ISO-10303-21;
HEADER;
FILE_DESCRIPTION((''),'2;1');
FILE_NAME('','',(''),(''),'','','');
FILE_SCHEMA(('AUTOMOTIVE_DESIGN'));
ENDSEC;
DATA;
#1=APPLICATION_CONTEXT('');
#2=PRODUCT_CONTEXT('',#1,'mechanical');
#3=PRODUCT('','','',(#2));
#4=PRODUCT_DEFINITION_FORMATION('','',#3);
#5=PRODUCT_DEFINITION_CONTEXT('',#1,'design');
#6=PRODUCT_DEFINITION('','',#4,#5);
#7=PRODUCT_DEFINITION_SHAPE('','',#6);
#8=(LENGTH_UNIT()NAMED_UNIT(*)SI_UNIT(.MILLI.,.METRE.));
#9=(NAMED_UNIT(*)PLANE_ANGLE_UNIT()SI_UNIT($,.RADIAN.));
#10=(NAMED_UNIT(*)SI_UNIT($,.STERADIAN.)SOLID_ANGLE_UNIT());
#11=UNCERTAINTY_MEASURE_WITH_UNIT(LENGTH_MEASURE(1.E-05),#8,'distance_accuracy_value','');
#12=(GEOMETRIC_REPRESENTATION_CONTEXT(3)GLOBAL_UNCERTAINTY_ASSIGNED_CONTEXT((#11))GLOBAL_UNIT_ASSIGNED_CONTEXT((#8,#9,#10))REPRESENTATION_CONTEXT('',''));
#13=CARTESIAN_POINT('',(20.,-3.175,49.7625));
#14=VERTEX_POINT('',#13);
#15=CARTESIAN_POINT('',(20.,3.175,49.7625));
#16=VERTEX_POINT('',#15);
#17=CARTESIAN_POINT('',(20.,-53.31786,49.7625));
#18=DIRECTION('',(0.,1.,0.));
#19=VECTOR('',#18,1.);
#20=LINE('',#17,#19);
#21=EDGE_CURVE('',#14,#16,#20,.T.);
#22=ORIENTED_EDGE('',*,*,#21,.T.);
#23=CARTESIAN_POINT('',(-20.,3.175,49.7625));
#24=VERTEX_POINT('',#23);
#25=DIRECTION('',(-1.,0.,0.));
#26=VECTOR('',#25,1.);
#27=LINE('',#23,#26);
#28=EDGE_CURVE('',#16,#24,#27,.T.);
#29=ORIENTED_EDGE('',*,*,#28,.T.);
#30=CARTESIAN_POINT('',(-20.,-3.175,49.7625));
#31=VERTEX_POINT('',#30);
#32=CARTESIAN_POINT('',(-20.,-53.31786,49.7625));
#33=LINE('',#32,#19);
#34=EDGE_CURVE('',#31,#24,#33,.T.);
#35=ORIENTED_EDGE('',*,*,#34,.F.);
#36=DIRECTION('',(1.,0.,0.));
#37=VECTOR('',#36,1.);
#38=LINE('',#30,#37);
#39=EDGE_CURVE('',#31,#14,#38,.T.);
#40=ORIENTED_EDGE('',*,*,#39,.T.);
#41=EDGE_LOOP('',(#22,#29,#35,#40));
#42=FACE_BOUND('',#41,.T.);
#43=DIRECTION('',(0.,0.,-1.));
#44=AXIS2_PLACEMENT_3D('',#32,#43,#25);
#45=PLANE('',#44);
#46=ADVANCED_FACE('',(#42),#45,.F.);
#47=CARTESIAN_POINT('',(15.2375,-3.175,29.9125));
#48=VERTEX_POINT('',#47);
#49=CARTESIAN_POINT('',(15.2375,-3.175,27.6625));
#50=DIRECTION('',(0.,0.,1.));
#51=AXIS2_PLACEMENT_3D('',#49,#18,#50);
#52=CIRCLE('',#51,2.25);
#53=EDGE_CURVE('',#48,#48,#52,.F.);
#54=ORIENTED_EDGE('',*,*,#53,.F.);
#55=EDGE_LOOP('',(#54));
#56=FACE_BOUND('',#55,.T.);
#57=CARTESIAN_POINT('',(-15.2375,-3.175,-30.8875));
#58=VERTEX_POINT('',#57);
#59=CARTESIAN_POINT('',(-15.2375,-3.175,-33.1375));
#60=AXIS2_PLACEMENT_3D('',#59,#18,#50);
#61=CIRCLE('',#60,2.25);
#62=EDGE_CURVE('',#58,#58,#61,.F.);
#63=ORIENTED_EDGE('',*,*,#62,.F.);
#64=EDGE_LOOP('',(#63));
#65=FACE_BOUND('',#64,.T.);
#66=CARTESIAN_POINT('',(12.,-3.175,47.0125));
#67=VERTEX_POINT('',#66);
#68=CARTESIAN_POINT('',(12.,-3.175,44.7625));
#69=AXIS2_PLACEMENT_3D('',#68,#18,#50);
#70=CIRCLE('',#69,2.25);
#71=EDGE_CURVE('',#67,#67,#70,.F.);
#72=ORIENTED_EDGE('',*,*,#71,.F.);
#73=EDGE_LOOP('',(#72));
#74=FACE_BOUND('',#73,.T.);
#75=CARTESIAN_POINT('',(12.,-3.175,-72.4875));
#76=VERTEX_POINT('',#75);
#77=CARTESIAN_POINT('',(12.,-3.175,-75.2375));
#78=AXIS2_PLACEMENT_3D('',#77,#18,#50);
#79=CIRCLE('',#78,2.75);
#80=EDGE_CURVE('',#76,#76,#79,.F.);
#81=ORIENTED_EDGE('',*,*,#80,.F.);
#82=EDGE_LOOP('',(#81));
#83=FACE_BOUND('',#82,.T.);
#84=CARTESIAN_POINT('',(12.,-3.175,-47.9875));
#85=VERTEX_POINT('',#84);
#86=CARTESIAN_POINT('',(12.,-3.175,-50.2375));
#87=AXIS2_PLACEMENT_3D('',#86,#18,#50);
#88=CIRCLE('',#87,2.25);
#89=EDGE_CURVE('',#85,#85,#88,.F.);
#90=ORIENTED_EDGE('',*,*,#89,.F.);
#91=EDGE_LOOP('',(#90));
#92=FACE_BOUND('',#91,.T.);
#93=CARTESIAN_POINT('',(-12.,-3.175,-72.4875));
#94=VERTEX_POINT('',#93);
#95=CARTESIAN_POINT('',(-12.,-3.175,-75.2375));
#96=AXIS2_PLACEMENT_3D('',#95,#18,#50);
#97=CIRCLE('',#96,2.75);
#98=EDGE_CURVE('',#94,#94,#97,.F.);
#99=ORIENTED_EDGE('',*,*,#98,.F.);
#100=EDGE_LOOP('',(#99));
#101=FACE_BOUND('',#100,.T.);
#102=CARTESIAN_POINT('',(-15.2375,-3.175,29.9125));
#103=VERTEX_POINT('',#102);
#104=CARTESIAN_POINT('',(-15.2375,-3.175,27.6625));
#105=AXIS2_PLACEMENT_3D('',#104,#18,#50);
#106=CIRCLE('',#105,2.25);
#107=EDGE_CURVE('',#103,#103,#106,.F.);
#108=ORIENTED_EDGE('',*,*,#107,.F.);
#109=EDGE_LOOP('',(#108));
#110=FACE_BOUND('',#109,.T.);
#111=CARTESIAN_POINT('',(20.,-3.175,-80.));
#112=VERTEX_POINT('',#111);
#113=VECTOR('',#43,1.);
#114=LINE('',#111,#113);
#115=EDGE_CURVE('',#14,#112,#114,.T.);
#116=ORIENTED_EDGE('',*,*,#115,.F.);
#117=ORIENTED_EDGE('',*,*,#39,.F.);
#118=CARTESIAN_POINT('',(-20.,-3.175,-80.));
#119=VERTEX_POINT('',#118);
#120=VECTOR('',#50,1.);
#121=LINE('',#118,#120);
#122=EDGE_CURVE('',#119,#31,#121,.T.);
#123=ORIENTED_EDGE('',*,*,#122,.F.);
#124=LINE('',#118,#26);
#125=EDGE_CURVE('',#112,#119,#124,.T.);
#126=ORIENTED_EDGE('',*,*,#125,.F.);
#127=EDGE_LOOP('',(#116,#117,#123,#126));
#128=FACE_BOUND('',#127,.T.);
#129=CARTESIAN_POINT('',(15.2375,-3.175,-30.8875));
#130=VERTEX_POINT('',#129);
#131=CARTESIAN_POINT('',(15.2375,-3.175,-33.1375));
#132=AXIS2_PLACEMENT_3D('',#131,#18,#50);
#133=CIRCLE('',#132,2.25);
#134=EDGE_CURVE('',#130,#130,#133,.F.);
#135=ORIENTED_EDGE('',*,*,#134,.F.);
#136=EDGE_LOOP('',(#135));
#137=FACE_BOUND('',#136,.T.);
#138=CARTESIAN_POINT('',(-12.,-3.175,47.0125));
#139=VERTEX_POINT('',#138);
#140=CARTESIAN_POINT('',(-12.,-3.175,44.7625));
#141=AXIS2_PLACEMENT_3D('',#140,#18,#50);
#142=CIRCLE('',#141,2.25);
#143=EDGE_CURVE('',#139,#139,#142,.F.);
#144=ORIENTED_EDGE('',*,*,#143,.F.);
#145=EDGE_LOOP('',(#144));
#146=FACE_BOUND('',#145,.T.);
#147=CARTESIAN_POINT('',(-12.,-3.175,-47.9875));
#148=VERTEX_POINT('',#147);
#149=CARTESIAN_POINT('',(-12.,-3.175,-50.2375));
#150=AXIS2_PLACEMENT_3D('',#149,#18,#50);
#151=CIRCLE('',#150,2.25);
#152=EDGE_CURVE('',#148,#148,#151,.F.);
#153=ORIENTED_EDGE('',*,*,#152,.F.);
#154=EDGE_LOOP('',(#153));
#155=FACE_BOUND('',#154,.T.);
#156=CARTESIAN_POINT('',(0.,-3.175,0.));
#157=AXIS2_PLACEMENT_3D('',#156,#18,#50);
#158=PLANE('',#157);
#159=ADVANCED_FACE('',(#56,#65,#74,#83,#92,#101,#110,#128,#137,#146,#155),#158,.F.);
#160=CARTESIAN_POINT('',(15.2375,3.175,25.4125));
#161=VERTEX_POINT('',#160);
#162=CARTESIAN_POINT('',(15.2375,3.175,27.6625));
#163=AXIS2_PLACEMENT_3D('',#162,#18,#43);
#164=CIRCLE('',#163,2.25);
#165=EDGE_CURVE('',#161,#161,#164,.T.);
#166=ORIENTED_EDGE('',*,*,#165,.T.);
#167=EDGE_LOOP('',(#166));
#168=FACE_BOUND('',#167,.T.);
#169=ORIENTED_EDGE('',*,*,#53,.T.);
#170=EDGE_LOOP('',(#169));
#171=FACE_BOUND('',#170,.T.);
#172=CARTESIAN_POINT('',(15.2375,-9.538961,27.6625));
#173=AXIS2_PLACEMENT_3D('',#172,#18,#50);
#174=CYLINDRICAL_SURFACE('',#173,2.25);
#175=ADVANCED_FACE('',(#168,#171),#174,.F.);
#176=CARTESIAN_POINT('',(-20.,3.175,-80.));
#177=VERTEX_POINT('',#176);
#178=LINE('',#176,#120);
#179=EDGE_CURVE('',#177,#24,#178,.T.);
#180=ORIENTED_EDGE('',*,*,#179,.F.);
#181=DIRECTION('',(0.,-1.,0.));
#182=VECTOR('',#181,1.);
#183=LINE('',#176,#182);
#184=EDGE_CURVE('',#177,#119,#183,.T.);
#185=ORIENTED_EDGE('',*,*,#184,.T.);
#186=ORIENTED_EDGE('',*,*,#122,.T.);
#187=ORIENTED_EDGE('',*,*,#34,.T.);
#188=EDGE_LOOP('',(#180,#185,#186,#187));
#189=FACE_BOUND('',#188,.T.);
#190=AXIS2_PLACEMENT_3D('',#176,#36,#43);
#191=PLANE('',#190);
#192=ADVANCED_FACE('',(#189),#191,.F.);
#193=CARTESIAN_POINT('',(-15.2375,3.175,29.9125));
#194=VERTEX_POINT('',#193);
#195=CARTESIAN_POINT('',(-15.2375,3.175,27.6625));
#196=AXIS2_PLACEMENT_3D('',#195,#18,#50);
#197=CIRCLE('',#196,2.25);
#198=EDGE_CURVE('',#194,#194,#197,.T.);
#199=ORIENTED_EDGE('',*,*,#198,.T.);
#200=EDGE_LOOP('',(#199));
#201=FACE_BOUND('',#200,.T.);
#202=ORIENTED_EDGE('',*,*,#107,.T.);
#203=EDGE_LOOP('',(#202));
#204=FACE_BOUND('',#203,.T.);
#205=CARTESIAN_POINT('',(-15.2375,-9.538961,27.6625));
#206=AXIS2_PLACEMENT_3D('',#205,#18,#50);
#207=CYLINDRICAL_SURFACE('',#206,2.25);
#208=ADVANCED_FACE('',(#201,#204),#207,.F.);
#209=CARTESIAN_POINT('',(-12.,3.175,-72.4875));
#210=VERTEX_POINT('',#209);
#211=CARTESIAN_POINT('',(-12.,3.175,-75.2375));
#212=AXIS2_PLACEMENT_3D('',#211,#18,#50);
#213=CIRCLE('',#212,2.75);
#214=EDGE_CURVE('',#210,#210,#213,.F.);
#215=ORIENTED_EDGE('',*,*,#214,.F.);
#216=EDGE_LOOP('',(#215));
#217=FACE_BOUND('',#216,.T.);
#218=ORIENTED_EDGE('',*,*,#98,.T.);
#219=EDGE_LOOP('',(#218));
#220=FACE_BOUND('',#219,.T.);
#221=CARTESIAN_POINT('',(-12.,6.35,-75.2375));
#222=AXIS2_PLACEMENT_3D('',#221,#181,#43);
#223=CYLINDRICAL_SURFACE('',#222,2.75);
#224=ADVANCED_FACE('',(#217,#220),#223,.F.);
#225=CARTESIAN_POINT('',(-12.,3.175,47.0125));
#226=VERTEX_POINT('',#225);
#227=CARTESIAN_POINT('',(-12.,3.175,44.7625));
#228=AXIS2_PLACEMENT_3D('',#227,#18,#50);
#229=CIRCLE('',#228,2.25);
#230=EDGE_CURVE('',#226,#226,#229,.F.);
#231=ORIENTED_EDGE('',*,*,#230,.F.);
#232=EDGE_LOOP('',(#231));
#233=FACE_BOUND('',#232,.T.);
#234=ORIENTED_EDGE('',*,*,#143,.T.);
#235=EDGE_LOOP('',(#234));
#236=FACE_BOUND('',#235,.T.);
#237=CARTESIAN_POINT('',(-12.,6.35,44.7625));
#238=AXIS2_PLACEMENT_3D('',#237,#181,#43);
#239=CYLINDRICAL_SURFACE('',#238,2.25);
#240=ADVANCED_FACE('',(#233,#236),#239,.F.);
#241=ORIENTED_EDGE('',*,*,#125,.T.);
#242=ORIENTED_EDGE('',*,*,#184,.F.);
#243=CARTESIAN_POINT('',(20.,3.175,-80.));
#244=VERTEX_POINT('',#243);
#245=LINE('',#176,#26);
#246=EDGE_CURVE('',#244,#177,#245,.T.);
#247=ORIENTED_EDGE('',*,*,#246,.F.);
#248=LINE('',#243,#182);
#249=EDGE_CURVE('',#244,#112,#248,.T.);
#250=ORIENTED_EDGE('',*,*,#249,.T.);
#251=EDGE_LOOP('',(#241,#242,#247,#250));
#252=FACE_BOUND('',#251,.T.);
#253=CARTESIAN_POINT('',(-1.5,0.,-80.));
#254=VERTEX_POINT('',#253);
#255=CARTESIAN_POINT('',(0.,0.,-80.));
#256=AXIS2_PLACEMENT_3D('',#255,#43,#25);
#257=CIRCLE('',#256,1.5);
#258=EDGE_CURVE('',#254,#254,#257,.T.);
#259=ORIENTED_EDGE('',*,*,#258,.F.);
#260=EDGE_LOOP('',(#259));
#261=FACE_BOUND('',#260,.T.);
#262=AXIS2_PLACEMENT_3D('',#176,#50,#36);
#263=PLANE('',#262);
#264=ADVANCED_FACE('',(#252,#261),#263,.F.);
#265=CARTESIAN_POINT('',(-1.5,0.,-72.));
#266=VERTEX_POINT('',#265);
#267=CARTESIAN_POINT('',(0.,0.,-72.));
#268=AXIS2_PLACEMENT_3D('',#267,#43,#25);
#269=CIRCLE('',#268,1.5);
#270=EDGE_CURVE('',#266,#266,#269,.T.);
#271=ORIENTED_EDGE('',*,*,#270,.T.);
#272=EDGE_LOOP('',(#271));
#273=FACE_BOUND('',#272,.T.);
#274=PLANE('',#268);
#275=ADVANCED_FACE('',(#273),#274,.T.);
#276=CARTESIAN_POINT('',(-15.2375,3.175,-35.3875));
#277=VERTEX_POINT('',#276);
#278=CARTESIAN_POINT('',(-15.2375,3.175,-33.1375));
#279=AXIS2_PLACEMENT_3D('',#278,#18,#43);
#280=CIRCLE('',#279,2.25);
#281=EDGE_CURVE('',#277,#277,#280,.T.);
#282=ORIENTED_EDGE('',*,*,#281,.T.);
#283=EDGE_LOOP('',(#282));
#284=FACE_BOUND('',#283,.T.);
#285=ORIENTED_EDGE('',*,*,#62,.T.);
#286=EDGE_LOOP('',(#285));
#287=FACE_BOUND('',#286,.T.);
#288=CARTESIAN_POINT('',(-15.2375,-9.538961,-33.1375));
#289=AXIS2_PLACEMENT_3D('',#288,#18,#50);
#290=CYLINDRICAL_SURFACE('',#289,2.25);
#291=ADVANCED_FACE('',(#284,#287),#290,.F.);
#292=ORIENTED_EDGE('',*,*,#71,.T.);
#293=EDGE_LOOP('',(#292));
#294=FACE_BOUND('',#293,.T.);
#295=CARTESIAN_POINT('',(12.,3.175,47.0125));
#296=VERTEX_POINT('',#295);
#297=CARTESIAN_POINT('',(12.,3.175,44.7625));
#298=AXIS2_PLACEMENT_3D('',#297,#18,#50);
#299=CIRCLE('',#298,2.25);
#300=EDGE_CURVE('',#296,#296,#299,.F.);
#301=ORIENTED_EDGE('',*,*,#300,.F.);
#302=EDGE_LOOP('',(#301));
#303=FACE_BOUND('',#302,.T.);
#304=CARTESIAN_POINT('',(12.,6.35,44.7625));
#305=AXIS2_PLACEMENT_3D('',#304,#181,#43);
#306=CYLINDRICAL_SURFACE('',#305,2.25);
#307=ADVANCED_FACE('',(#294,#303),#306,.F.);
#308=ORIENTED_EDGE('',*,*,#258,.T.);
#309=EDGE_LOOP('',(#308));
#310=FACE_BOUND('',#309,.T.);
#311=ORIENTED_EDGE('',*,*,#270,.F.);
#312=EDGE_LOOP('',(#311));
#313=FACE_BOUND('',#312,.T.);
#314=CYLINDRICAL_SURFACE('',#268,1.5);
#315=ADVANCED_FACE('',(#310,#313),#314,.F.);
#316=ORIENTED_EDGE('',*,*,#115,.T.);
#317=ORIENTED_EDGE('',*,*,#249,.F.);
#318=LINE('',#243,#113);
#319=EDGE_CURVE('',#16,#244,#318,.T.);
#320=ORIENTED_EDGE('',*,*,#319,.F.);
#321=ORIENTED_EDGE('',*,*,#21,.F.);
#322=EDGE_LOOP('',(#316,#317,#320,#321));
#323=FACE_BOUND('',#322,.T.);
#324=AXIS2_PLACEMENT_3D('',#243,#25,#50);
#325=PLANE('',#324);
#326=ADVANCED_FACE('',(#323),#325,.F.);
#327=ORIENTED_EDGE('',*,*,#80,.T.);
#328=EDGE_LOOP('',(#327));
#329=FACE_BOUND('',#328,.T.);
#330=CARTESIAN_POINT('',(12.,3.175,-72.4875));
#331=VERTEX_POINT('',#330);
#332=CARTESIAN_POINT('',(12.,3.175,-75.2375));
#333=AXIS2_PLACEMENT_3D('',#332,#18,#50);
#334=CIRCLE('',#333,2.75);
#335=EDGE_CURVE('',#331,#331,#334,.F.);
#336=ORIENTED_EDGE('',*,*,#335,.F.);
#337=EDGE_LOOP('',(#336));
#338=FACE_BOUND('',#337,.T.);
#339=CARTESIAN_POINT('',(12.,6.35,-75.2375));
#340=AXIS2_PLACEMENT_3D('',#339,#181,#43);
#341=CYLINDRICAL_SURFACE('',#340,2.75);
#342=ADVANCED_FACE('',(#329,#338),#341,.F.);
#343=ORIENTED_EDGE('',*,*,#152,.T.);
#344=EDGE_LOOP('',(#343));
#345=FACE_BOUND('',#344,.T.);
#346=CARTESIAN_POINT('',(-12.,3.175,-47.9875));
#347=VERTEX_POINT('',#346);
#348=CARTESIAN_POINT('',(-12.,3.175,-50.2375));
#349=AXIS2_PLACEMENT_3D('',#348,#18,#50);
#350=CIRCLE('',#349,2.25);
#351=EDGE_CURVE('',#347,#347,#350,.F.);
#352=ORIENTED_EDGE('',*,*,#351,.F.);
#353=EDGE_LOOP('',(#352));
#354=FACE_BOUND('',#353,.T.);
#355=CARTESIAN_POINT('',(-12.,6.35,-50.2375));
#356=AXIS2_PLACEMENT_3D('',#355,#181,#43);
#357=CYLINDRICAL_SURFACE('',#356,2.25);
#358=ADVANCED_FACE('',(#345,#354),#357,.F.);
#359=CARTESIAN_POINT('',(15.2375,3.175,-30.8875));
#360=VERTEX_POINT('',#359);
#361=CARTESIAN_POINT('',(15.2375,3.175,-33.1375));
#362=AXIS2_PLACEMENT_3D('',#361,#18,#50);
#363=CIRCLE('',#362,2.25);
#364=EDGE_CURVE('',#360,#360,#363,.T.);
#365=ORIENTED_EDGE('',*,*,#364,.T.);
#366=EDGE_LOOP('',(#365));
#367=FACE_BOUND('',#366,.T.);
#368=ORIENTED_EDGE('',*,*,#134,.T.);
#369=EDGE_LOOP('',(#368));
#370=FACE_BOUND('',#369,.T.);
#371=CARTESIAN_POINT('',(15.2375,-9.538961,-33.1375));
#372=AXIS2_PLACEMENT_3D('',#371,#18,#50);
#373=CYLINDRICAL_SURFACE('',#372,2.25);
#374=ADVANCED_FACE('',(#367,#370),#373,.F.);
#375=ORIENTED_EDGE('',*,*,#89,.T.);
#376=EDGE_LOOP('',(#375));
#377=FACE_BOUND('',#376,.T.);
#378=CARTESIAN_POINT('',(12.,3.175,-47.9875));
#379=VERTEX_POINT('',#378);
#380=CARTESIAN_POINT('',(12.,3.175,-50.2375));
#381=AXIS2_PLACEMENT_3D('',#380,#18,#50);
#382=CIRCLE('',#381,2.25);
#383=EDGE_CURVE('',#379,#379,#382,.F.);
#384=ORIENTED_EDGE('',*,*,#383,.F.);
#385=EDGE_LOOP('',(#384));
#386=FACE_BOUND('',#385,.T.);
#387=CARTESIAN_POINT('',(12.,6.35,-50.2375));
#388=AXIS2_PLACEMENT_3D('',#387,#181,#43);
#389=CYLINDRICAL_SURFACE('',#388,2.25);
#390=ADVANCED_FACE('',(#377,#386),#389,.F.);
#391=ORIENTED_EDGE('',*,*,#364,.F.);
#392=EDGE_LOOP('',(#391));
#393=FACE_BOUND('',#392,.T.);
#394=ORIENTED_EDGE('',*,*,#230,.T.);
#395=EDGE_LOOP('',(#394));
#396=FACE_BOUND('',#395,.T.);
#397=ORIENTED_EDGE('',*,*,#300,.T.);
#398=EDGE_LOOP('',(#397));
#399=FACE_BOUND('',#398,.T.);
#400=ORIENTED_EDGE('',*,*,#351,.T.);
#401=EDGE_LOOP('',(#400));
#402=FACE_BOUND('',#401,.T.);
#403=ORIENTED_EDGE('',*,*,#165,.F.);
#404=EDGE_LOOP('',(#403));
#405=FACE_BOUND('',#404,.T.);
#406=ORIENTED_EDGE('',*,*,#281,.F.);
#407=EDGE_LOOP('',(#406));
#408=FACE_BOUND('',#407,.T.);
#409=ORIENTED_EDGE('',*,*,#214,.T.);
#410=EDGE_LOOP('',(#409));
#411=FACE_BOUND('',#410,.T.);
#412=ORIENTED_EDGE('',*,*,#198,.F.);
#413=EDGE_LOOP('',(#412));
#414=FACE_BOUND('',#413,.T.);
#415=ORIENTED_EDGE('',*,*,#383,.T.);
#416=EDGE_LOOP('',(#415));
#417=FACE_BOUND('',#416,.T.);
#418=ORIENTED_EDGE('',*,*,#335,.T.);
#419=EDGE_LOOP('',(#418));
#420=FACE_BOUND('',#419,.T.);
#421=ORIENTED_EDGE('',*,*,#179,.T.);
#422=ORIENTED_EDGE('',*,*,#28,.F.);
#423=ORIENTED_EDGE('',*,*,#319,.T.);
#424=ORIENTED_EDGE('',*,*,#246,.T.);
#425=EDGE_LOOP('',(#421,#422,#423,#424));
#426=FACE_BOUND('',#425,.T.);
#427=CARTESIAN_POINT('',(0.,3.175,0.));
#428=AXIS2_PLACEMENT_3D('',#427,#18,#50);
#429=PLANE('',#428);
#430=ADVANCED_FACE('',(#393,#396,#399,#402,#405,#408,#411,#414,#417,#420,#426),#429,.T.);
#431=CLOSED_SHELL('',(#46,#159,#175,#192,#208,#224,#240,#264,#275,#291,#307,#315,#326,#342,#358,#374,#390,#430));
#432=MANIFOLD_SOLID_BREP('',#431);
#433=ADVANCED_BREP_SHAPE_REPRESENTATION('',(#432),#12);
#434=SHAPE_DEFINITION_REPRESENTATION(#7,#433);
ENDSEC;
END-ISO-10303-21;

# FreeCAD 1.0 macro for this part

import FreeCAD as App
import Part
import Sketcher
from FreeCAD import Vector


def add_polygon(sketch, points):
    """Adds a closed chain of lines whose ends are joined by coincident constraints."""
    first, n = sketch.GeometryCount, len(points)
    for a, b in zip(points, points[1:] + points[:1]):
        sketch.addGeometry(Part.LineSegment(App.Vector(*a, 0), App.Vector(*b, 0)), False)
    for i in range(n):
        sketch.addConstraint(Sketcher.Constraint("Coincident", first + i, 2, first + (i + 1) % n, 1))

doc = App.newDocument("Part")
body = doc.addObject("PartDesign::Body", "Body")

# Sketch on XZ plane
sketch1 = doc.addObject("Sketcher::SketchObject", "Sketch")
body.addObject(sketch1)
sketch1.AttachmentSupport = (doc.XZ_Plane, [""])
sketch1.MapMode = "FlatFace"
add_polygon(sketch1, [(-20, -80), (-20, 80), (20, 80), (20, -80)])  # lines 0-3
sketch1.addConstraint([
    Sketcher.Constraint("Vertical", 0),
    Sketcher.Constraint("Horizontal", 1),
    Sketcher.Constraint("Vertical", 2),
    Sketcher.Constraint("Horizontal", 3),
    Sketcher.Constraint("Symmetric", 0, 2, 2, 2, -1, 1),
    Sketcher.Constraint("DistanceX", 1, 1, 1, 2, 40.0),
    Sketcher.Constraint("DistanceY", 0, 1, 0, 2, 160.0),
])
pad1 = doc.addObject("PartDesign::Pad", "Pad")
body.addObject(pad1)
pad1.Profile = sketch1
pad1.Length = 6.35
pad1.Midplane = True

# Sketch on XZ plane
sketch2 = doc.addObject("Sketcher::SketchObject", "Sketch001")
body.addObject(sketch2)
sketch2.AttachmentSupport = (doc.XZ_Plane, [""])
sketch2.MapMode = "FlatFace"
sketch2.addGeometry([
    Part.Circle(Vector(12, -75.2375, 0), Vector(0, 0, 1), 2.75),  # 0
    Part.Circle(Vector(12, -50.2375, 0), Vector(0, 0, 1), 2.25),  # 1
    Part.Circle(Vector(-12, -50.2375, 0), Vector(0, 0, 1), 2.25),  # 2
    Part.Circle(Vector(-12, -75.2375, 0), Vector(0, 0, 1), 2.75),  # 3
    Part.Circle(Vector(-12, 44.7625, 0), Vector(0, 0, 1), 2.25),  # 4
    Part.Circle(Vector(12, 44.7625, 0), Vector(0, 0, 1), 2.25),  # 5
], False)
sketch2.addConstraint([
    Sketcher.Constraint("Equal", 1, 2),
    Sketcher.Constraint("Equal", 0, 3),
    Sketcher.Constraint("Equal", 2, 4),
    Sketcher.Constraint("Equal", 4, 5),
    Sketcher.Constraint("Symmetric", 1, 3, 2, 3, -2),
    Sketcher.Constraint("Symmetric", 0, 3, 3, 3, -2),
    Sketcher.Constraint("Symmetric", 4, 3, 5, 3, -2),
    Sketcher.Constraint("Vertical", 0, 3, 1, 3),
    Sketcher.Constraint("Vertical", 3, 3, 4, 3),
    Sketcher.Constraint("Diameter", 0, 5.5),
    Sketcher.Constraint("Diameter", 1, 4.5),
    Sketcher.Constraint("DistanceX", -1, 1, 0, 3, 12.0),
    Sketcher.Constraint("DistanceY", 0, 3, 1, 3, 25.0),
    Sketcher.Constraint("DistanceY", 2, 3, 4, 3, 95.0),
    Sketcher.Constraint("DistanceY", 0, 3, -1, 1, 75.2375),
])
pocket1 = doc.addObject("PartDesign::Pocket", "Pocket")
body.addObject(pocket1)
pocket1.Profile = sketch2
pocket1.Type = "ThroughAll"
pocket1.Midplane = True

# Sketch on XY plane
sketch3 = doc.addObject("Sketcher::SketchObject", "Sketch002")
body.addObject(sketch3)
sketch3.AttachmentSupport = (doc.XY_Plane, [""])
sketch3.MapMode = "FlatFace"
sketch3.AttachmentOffset = App.Placement(Vector(0, 0, -80), App.Rotation())
sketch3.addGeometry(Part.Circle(Vector(0, 0, 0), Vector(0, 0, 1), 1.5), False)
sketch3.addConstraint([
    Sketcher.Constraint("Coincident", 0, 3, -1, 1),
    Sketcher.Constraint("Diameter", 0, 3.0),
])
pocket2 = doc.addObject("PartDesign::Pocket", "Pocket001")
body.addObject(pocket2)
pocket2.Profile = sketch3
pocket2.Length = 8
pocket2.Reversed = True

# Sketch on XZ plane
sketch4 = doc.addObject("Sketcher::SketchObject", "Sketch003")
body.addObject(sketch4)
sketch4.AttachmentSupport = (doc.XZ_Plane, [""])
sketch4.MapMode = "FlatFace"
sketch4.AttachmentOffset = App.Placement(Vector(0, 0, -3.175), App.Rotation())
sketch4.addGeometry([
    Part.Circle(Vector(-15.2375, 27.6625, 0), Vector(0, 0, 1), 2.25),
    Part.Circle(Vector(15.2375, 27.6625, 0), Vector(0, 0, 1), 2.25),
    Part.Circle(Vector(15.2375, -33.1375, 0), Vector(0, 0, 1), 2.25),
    Part.Circle(Vector(-15.2375, -33.1375, 0), Vector(0, 0, 1), 2.25),
], False)
sketch4.addConstraint([
    Sketcher.Constraint("Equal", 0, 1),
    Sketcher.Constraint("Equal", 1, 2),
    Sketcher.Constraint("Equal", 2, 3),
    Sketcher.Constraint("Symmetric", 0, 3, 1, 3, -2),
    Sketcher.Constraint("Symmetric", 2, 3, 3, 3, -2),
    Sketcher.Constraint("Vertical", 1, 3, 2, 3),
    Sketcher.Constraint("Diameter", 0, 4.5),
    Sketcher.Constraint("DistanceY", 2, 3, 1, 3, 60.8),
    Sketcher.Constraint("DistanceX", 0, 3, 1, 3, 30.475),
    Sketcher.Constraint("DistanceY", -1, 1, 0, 3, 27.6625),
])
pocket3 = doc.addObject("PartDesign::Pocket", "Pocket002")
body.addObject(pocket3)
pocket3.Profile = sketch4
pocket3.Length = 6.35
pocket3.Reversed = True

# Sketch on XZ plane
sketch5 = doc.addObject("Sketcher::SketchObject", "Sketch004")
body.addObject(sketch5)
sketch5.AttachmentSupport = (doc.XZ_Plane, [""])
sketch5.MapMode = "FlatFace"
sketch5.AttachmentOffset = App.Placement(Vector(0, 0, -3.175), App.Rotation())
add_polygon(sketch5, [(-20, 49.7625), (-20, 80), (20, 80), (20, 49.7625)])  # lines 0-3
sketch5.addConstraint([
    Sketcher.Constraint("Vertical", 0),
    Sketcher.Constraint("Horizontal", 1),
    Sketcher.Constraint("Vertical", 2),
    Sketcher.Constraint("Horizontal", 3),
    Sketcher.Constraint("DistanceX", 1, 1, 1, 2, 40.0),
    Sketcher.Constraint("DistanceX", 0, 2, -1, 1, 20.0),
    Sketcher.Constraint("DistanceY", -1, 1, 0, 2, 80.0),
    Sketcher.Constraint("DistanceY", 0, 1, 0, 2, 30.2375),
])
pocket4 = doc.addObject("PartDesign::Pocket", "Pocket003")
body.addObject(pocket4)
pocket4.Profile = sketch5
pocket4.Length = 6.35
pocket4.Reversed = True

doc.recompute()
